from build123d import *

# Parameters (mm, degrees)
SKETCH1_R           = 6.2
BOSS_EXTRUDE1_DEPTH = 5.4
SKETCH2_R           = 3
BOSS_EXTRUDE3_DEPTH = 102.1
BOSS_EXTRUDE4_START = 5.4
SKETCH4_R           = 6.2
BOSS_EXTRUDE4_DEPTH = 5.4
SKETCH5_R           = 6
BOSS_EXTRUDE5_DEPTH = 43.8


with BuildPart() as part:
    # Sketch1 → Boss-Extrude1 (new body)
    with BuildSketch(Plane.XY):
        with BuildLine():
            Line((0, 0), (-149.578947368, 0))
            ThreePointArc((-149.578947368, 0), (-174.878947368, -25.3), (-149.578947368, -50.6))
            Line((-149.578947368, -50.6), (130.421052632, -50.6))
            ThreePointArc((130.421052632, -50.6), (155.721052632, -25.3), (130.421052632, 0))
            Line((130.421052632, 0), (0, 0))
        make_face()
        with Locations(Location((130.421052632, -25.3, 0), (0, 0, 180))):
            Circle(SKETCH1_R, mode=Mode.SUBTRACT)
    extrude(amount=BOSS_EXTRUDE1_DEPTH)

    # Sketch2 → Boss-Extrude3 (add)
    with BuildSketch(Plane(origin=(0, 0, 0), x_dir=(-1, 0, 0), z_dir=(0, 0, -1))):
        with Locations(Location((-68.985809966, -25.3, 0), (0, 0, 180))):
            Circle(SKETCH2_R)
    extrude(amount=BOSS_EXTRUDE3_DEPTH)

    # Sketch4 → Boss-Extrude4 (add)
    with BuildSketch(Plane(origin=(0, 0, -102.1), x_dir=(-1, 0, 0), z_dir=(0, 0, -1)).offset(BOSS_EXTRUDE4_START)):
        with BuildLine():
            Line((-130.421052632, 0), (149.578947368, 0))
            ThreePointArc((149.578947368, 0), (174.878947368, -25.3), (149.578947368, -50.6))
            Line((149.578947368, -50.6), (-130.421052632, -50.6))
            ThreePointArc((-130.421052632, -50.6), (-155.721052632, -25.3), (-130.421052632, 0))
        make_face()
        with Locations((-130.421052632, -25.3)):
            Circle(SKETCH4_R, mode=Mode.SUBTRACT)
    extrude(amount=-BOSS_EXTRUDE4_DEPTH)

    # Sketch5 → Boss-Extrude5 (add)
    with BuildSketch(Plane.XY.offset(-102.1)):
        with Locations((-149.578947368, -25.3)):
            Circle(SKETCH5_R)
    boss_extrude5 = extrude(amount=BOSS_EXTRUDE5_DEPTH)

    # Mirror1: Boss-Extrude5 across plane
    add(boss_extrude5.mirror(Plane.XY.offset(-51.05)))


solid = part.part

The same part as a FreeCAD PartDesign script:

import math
import FreeCAD as App
import Part
import Sketcher
from FreeCAD import Vector

doc = App.newDocument("Part")
body = doc.addObject("PartDesign::Body", "Body")

# Sketch on XY plane
sketch1 = doc.addObject("Sketcher::SketchObject", "Sketch")
body.addObject(sketch1)
sketch1.AttachmentSupport = (doc.XY_Plane, [""])
sketch1.MapMode = "FlatFace"
sketch1.addGeometry(Part.ArcOfCircle(Part.Circle(Vector(-150, -25, 0), Vector(0, 0, 1), 25), math.radians(90), math.radians(270)), False)
sketch1.addGeometry(Part.LineSegment(Vector(-150, -51, 0), Vector(130, -51, 0)), False)
sketch1.addGeometry(Part.ArcOfCircle(Part.Circle(Vector(130, -25, 0), Vector(0, 0, 1), 25), math.radians(-90), math.radians(90)), False)
sketch1.addGeometry(Part.LineSegment(Vector(130, 0, 0), Vector(-150, 0, 0)), False)
sketch1.addGeometry(Part.Circle(Vector(130, -25, 0), Vector(0, 0, 1), 6), False)
sketch1.addConstraint(Sketcher.Constraint("Tangent", 0, 2, 1, 1))
sketch1.addConstraint(Sketcher.Constraint("Tangent", 1, 2, 2, 1))
sketch1.addConstraint(Sketcher.Constraint("Tangent", 2, 2, 3, 1))
sketch1.addConstraint(Sketcher.Constraint("Tangent", 3, 2, 0, 1))
sketch1.addConstraint(Sketcher.Constraint("Horizontal", 1))
sketch1.addConstraint(Sketcher.Constraint("Horizontal", 3))
sketch1.addConstraint(Sketcher.Constraint("Coincident", 4, 3, 2, 3))
sketch1.addConstraint(Sketcher.Constraint("PointOnObject", 2, 2, -1))
sketch1.addConstraint(Sketcher.Constraint("Diameter", 4, 12.4))
sketch1.addConstraint(Sketcher.Constraint("Radius", 0, 25.3))
sketch1.addConstraint(Sketcher.Constraint("DistanceX", 1, 1, 1, 2, 280.0))
sketch1.addConstraint(Sketcher.Constraint("DistanceX", 0, 3, -1, 1, 149.578947))
pad1 = doc.addObject("PartDesign::Pad", "Pad")
body.addObject(pad1)
pad1.Profile = sketch1
pad1.Length = 5.4

# Sketch on XY plane
sketch2 = doc.addObject("Sketcher::SketchObject", "Sketch001")
body.addObject(sketch2)
sketch2.AttachmentSupport = (doc.XY_Plane, [""])
sketch2.MapMode = "FlatFace"
sketch2.addGeometry(Part.Circle(Vector(69, -25.3, 0), Vector(0, 0, 1), 3), False)
sketch2.addConstraint(Sketcher.Constraint("Diameter", 0, 6.0))
sketch2.addConstraint(Sketcher.Constraint("DistanceY", 0, 3, -1, 1, 25.3))
sketch2.addConstraint(Sketcher.Constraint("DistanceX", -1, 1, 0, 3, 68.98581))
pad2 = doc.addObject("PartDesign::Pad", "Pad001")
body.addObject(pad2)
pad2.Profile = sketch2
pad2.Length = 102.1
pad2.Reversed = True

# Sketch on XY plane
sketch3 = doc.addObject("Sketcher::SketchObject", "Sketch002")
body.addObject(sketch3)
sketch3.AttachmentSupport = (doc.XY_Plane, [""])
sketch3.MapMode = "FlatFace"
sketch3.AttachmentOffset = App.Placement(Vector(0, 0, -107.5), App.Rotation())
sketch3.addGeometry(Part.LineSegment(Vector(-150, 0, 0), Vector(130, 0, 0)), False)
sketch3.addGeometry(Part.ArcOfCircle(Part.Circle(Vector(130, -25, 0), Vector(0, 0, 1), 25), math.radians(-90), math.radians(90)), False)
sketch3.addGeometry(Part.LineSegment(Vector(130, -51, 0), Vector(-150, -51, 0)), False)
sketch3.addGeometry(Part.ArcOfCircle(Part.Circle(Vector(-150, -25, 0), Vector(0, 0, 1), 25), math.radians(90), math.radians(270)), False)
sketch3.addGeometry(Part.Circle(Vector(130, -25, 0), Vector(0, 0, 1), 6), False)
sketch3.addConstraint(Sketcher.Constraint("Tangent", 0, 2, 1, 2))
sketch3.addConstraint(Sketcher.Constraint("Tangent", 1, 1, 2, 1))
sketch3.addConstraint(Sketcher.Constraint("Tangent", 2, 2, 3, 2))
sketch3.addConstraint(Sketcher.Constraint("Tangent", 3, 1, 0, 1))
sketch3.addConstraint(Sketcher.Constraint("Horizontal", 0))
sketch3.addConstraint(Sketcher.Constraint("Horizontal", 2))
sketch3.addConstraint(Sketcher.Constraint("Coincident", 4, 3, 1, 3))
sketch3.addConstraint(Sketcher.Constraint("PointOnObject", 0, 2, -1))
sketch3.addConstraint(Sketcher.Constraint("Diameter", 4, 12.4))
sketch3.addConstraint(Sketcher.Constraint("Radius", 1, 25.3))
sketch3.addConstraint(Sketcher.Constraint("DistanceX", 0, 1, 0, 2, 280.0))
sketch3.addConstraint(Sketcher.Constraint("DistanceX", -1, 1, 1, 3, 130.421053))
pad3 = doc.addObject("PartDesign::Pad", "Pad002")
body.addObject(pad3)
pad3.Profile = sketch3
pad3.Length = 5.4

# Sketch on XY plane
sketch4 = doc.addObject("Sketcher::SketchObject", "Sketch003")
body.addObject(sketch4)
sketch4.AttachmentSupport = (doc.XY_Plane, [""])
sketch4.MapMode = "FlatFace"
sketch4.AttachmentOffset = App.Placement(Vector(0, 0, -102.1), App.Rotation())
sketch4.addGeometry(Part.Circle(Vector(-150, -25, 0), Vector(0, 0, 1), 6), False)
sketch4.addConstraint(Sketcher.Constraint("Diameter", 0, 12.0))
sketch4.addConstraint(Sketcher.Constraint("DistanceY", 0, 3, -1, 1, 25.3))
sketch4.addConstraint(Sketcher.Constraint("DistanceX", 0, 3, -1, 1, 149.578947))
pad4 = doc.addObject("PartDesign::Pad", "Pad003")
body.addObject(pad4)
pad4.Profile = sketch4
pad4.Length = 43.8
doc.recompute()

datumplane = doc.addObject("PartDesign::Plane", "DatumPlane")
body.addObject(datumplane)
datumplane.AttachmentSupport = (doc.XY_Plane, [""])
datumplane.MapMode = "FlatFace"
datumplane.AttachmentOffset = App.Placement(Vector(0, 0, -51.05), App.Rotation())
mirrored = doc.addObject("PartDesign::Mirrored", "Mirrored")
body.addObject(mirrored)
mirrored.Originals = [pad4]
mirrored.MirrorPlane = (datumplane, [""])
body.Tip = mirrored

doc.recompute()
